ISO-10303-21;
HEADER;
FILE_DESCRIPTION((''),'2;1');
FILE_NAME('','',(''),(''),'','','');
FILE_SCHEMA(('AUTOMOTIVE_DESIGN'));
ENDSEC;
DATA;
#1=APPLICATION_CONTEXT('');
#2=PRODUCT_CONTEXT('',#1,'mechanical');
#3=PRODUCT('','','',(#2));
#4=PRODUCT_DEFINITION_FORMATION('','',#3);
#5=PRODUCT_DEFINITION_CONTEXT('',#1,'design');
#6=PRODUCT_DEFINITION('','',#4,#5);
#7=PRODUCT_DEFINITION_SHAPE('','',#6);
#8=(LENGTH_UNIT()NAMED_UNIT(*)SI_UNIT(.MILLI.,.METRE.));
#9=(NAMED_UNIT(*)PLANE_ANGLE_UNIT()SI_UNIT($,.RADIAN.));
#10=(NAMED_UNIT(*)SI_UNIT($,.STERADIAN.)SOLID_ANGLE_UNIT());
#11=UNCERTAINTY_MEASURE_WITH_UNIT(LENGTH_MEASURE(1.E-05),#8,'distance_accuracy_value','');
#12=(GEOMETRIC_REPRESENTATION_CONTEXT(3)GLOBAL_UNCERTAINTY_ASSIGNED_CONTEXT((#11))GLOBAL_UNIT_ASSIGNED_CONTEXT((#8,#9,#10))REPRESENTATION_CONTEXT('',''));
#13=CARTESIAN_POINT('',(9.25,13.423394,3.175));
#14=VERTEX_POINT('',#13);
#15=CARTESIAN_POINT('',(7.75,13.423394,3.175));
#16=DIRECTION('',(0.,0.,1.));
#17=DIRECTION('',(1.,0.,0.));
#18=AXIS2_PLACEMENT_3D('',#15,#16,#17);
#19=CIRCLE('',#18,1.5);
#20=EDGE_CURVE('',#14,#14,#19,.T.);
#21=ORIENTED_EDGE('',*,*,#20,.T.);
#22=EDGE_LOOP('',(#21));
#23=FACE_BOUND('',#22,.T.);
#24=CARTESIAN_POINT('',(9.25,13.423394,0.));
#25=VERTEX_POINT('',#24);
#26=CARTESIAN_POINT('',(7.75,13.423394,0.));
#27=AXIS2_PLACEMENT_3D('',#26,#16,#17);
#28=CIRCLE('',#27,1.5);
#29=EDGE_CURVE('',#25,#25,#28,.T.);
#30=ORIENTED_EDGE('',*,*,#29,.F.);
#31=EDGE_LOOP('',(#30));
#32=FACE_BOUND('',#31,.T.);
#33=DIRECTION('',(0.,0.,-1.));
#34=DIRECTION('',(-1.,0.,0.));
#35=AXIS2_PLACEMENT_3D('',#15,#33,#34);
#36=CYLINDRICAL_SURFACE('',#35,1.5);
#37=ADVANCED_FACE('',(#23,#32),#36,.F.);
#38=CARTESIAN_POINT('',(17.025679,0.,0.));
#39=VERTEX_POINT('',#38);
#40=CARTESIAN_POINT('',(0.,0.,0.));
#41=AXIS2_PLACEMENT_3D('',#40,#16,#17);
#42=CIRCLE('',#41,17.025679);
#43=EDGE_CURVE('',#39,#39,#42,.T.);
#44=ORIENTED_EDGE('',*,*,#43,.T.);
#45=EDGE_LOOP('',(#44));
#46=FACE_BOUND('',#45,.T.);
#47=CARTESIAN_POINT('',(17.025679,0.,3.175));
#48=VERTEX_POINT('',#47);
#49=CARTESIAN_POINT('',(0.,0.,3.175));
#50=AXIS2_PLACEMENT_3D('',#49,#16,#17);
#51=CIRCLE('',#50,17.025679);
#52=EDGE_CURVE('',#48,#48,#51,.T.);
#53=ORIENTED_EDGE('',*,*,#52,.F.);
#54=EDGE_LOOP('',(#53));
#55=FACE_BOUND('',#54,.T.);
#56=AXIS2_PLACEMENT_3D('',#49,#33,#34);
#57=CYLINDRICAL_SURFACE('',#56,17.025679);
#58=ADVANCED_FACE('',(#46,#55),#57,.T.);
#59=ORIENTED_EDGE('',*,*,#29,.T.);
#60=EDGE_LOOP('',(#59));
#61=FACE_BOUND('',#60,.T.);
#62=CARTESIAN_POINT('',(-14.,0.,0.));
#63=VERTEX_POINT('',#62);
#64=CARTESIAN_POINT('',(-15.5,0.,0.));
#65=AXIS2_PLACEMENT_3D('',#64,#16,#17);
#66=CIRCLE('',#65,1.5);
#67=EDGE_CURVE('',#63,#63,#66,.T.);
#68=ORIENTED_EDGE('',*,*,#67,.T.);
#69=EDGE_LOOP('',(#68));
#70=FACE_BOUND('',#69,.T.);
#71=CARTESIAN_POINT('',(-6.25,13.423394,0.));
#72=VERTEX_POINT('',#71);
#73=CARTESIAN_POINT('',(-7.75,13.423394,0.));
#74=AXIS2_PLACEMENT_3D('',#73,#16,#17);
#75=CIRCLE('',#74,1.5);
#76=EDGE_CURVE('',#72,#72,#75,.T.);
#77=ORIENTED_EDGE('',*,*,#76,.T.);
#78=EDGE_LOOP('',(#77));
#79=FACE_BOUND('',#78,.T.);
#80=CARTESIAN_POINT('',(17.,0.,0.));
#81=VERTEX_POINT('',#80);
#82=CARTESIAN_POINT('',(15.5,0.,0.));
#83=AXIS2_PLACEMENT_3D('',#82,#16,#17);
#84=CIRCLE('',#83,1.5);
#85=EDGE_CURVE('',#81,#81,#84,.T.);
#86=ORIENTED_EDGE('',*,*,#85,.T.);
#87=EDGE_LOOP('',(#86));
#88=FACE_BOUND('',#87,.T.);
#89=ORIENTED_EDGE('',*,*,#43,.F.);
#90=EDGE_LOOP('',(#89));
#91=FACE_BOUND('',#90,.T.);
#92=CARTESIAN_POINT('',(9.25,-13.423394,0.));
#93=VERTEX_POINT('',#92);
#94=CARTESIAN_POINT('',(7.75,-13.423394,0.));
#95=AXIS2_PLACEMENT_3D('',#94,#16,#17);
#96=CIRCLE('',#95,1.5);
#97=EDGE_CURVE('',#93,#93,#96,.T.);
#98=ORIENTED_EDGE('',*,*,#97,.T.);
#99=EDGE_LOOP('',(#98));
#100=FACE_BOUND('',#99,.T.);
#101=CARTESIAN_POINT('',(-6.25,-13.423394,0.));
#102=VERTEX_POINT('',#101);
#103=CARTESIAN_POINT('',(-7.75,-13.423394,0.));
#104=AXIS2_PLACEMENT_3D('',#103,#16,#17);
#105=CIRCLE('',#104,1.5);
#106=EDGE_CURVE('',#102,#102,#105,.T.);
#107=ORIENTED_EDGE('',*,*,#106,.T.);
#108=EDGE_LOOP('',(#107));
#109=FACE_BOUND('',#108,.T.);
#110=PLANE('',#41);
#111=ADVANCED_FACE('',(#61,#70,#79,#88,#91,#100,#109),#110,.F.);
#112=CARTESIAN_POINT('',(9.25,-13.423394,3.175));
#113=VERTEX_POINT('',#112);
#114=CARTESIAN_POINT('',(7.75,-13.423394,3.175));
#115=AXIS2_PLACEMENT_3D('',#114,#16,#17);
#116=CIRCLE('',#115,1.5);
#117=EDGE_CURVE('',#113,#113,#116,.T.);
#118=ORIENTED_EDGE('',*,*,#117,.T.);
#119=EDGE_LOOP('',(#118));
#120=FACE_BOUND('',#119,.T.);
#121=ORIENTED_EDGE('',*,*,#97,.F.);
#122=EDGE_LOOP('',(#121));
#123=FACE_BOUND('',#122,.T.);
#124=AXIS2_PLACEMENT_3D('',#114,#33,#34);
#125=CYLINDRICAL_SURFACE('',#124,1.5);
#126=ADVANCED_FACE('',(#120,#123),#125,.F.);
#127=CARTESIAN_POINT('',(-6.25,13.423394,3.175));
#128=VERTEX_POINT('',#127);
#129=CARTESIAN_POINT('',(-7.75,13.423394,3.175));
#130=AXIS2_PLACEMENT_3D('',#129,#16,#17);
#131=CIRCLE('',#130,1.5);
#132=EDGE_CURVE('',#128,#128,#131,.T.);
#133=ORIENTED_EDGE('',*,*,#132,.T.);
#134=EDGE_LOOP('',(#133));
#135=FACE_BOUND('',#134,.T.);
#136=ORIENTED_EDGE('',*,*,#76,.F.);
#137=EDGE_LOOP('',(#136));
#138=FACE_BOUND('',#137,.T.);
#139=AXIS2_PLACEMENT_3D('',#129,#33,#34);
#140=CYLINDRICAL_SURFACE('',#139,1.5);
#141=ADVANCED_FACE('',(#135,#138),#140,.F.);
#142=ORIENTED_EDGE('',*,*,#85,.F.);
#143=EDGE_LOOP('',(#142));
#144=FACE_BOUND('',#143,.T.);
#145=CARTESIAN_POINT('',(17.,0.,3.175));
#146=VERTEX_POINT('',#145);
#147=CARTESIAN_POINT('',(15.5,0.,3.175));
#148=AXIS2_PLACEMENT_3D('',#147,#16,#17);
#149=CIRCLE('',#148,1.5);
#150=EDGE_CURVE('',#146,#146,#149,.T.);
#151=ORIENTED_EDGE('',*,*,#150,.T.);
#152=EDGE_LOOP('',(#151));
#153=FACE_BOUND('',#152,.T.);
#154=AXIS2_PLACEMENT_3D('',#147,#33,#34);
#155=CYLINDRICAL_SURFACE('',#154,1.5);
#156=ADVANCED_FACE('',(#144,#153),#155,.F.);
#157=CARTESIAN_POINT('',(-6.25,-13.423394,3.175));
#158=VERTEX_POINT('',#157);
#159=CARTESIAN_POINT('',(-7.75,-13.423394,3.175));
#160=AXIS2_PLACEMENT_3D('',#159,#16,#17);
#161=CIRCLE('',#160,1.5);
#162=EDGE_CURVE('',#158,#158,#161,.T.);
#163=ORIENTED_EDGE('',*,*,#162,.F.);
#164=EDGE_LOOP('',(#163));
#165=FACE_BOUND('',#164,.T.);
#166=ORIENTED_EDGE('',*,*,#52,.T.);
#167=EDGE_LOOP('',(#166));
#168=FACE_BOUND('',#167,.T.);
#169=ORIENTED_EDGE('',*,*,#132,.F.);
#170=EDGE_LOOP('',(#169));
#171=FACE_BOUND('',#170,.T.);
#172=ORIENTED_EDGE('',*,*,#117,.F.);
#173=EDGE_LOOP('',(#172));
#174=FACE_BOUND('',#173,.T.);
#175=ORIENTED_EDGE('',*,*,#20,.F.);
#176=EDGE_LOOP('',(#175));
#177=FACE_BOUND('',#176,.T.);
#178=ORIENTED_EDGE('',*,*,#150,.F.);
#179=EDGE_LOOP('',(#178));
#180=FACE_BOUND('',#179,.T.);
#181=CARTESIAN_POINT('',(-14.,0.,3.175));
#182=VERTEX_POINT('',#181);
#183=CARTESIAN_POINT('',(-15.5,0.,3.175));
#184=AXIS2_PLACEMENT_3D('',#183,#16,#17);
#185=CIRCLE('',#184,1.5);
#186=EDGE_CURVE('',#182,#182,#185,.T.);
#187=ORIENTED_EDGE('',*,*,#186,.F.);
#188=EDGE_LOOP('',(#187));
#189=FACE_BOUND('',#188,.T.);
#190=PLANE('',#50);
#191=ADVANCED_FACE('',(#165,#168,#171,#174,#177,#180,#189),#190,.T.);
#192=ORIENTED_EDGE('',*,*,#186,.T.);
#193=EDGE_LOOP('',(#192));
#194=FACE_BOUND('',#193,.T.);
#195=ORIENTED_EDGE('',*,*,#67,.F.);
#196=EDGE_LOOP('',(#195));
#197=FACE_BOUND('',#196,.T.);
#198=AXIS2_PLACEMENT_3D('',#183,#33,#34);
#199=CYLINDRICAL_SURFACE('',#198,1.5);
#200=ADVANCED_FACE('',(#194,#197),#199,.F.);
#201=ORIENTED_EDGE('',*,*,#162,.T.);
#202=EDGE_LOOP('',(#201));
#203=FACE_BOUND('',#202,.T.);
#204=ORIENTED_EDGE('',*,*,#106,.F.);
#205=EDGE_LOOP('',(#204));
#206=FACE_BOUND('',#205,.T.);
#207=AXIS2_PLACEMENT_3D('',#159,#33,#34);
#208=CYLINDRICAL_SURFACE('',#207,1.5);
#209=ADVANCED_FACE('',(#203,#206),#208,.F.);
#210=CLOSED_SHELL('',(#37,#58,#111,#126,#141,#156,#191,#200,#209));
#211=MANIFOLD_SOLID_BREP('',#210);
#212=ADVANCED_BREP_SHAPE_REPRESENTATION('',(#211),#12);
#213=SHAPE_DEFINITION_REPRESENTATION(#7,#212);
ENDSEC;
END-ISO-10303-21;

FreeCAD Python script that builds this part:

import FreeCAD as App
import Part
import Sketcher

doc = App.newDocument("Part")
body = doc.addObject("PartDesign::Body", "Body")

sketch1 = body.newObject("Sketcher::SketchObject", "Sketch")
sketch1.AttachmentSupport = (doc.getObject("XY_Plane"), [""])
sketch1.MapMode = "FlatFace"
sketch1.addGeometry(Part.Circle(App.Vector(0, 0, 0), App.Vector(0, 0, 1), 17), False)
sketch1.addGeometry(Part.Circle(App.Vector(-7.8, -13.4, 0), App.Vector(0, 0, 1), 1.5), False)
sketch1.addGeometry(Part.Circle(App.Vector(7.8, -13.4, 0), App.Vector(0, 0, 1), 1.5), False)
sketch1.addGeometry(Part.Circle(App.Vector(-15.5, 0, 0), App.Vector(0, 0, 1), 1.5), False)
sketch1.addGeometry(Part.Circle(App.Vector(-7.8, 13.4, 0), App.Vector(0, 0, 1), 1.5), False)
sketch1.addGeometry(Part.Circle(App.Vector(15.5, 0, 0), App.Vector(0, 0, 1), 1.5), False)
sketch1.addGeometry(Part.Circle(App.Vector(7.8, 13.4, 0), App.Vector(0, 0, 1), 1.5), False)
sketch1.addConstraint(Sketcher.Constraint("Coincident", 0, 3, -1, 1))
sketch1.addConstraint(Sketcher.Constraint("Equal", 1, 2))
sketch1.addConstraint(Sketcher.Constraint("Equal", 2, 3))
sketch1.addConstraint(Sketcher.Constraint("Equal", 3, 4))
sketch1.addConstraint(Sketcher.Constraint("Equal", 4, 5))
sketch1.addConstraint(Sketcher.Constraint("Equal", 5, 6))
sketch1.addConstraint(Sketcher.Constraint("Symmetric", 2, 3, 4, 3, -1, 1))
sketch1.addConstraint(Sketcher.Constraint("Symmetric", 3, 3, 5, 3, -1, 1))
sketch1.addConstraint(Sketcher.Constraint("Symmetric", 1, 3, 6, 3, -1, 1))
sketch1.addConstraint(Sketcher.Constraint("Symmetric", 1, 3, 2, 3, -2))
sketch1.addConstraint(Sketcher.Constraint("PointOnObject", 3, 3, -1))
sketch1.addConstraint(Sketcher.Constraint("Diameter", 1, 3.0))
sketch1.addConstraint(Sketcher.Constraint("DistanceX", 3, 3, 5, 3, 31.0))
sketch1.addConstraint(Sketcher.Constraint("DistanceX", 1, 3, 2, 3, 15.5))
sketch1.addConstraint(Sketcher.Constraint("Diameter", 0, 34.051358))
sketch1.addConstraint(Sketcher.Constraint("DistanceY", 1, 3, -1, 1, 13.423394))
pad1 = body.newObject("PartDesign::Pad", "Pad")
pad1.Profile = sketch1
pad1.Length = 3.175

doc.recompute()
